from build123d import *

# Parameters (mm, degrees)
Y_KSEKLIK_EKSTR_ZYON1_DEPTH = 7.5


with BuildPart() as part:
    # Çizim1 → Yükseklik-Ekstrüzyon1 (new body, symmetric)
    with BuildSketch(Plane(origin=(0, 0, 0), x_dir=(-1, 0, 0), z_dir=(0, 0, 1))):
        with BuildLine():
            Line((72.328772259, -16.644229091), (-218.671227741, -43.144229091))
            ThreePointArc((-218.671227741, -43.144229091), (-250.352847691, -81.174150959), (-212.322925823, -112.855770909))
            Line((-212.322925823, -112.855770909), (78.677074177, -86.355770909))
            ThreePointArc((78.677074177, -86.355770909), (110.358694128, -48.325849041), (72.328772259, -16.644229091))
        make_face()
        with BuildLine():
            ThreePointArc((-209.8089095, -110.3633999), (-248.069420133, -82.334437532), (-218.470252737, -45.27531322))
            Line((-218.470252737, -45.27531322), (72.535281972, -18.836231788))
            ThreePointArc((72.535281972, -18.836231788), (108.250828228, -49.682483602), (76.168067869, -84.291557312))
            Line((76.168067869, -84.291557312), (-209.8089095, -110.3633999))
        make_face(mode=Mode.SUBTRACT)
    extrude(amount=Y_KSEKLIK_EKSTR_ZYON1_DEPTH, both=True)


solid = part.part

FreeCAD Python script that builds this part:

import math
import FreeCAD as App
import Part
import Sketcher

V = App.Vector

doc = App.newDocument("Part")
params = doc.addObject("Spreadsheet::Sheet", "Params")
for row, (alias, value) in enumerate([
    ("sketch1_radius", "35 mm"),
    ("pad1_length", "15 mm"),
], start=1):
    params.set(f"A{row}", alias)
    params.set(f"B{row}", "=" + value)
    params.setAlias(f"B{row}", alias)

body = doc.addObject("PartDesign::Body", "Body")

# Sketch on XY plane
sketch1 = body.newObject("Sketcher::SketchObject", "Sketch")
sketch1.AttachmentSupport = (doc.getObject("XY_Plane"), [""])
sketch1.MapMode = "FlatFace"
sketch1.addGeometry([
    Part.LineSegment(V(-72.328772, 16.644229, 0), V(218.671228, 43.144229, 0)),  # 0
    Part.ArcOfCircle(Part.Circle(V(215.497077, 78, 0), V(0, 0, 1), 35), math.radians(-84.796695), math.radians(95.203305)),  # 1
    Part.LineSegment(V(212.322926, 112.855771, 0), V(-78.677074, 86.355771, 0)),  # 2
    Part.ArcOfCircle(Part.Circle(V(-75.502923, 51.5, 0), V(0, 0, 1), 35), math.radians(95.203305), math.radians(275.203305)),  # 3
    Part.LineSegment(V(-76.168068, 84.291557, 0), V(209.808909, 110.3634, 0)),  # 4
    Part.ArcOfCircle(Part.Circle(V(215.497077, 78, 0), V(0, 0, 1), 32.859472), math.radians(-84.808689), math.radians(99.96845)),  # 5
    Part.LineSegment(V(218.470253, 45.275313, 0), V(-72.535282, 18.836232, 0)),  # 6
    Part.ArcOfCircle(Part.Circle(V(-75.502923, 51.5, 0), V(0, 0, 1), 32.798303), math.radians(91.162029), math.radians(275.191311)),  # 7
], False)
sketch1.addConstraint([
    Sketcher.Constraint("Tangent", 0, 2, 1, 1),
    Sketcher.Constraint("Tangent", 1, 2, 2, 1),
    Sketcher.Constraint("Tangent", 2, 2, 3, 1),
    Sketcher.Constraint("Tangent", 3, 2, 0, 1),
    Sketcher.Constraint("Coincident", 4, 2, 5, 2),
    Sketcher.Constraint("Tangent", 5, 1, 6, 1),
    Sketcher.Constraint("Tangent", 6, 2, 7, 2),
    Sketcher.Constraint("Coincident", 7, 1, 4, 1),
    Sketcher.Constraint("Coincident", 5, 3, 1, 3),
    Sketcher.Constraint("Coincident", 7, 3, 3, 3),
    Sketcher.Constraint("Equal", 1, 3),
    Sketcher.Constraint("Radius", 1, 35.0),
    Sketcher.Constraint("DistanceY", -1, 1, 1, 3, 78.0),
    Sketcher.Constraint("DistanceX", 3, 3, 1, 3, 291.0),
    Sketcher.Constraint("DistanceY", -1, 1, 3, 3, 51.5),
    Sketcher.Constraint("Radius", 5, 32.859472),
    Sketcher.Constraint("Radius", 7, 32.798303),
    Sketcher.Constraint("DistanceY", -1, 1, 4, 2, 110.3634),
    Sketcher.Constraint("DistanceX", -1, 1, 4, 2, 209.808909),
    Sketcher.Constraint("DistanceY", 3, 2, 7, 1, 67.647328),
])
sketch1.setExpression("Constraints[11]", "Params.sketch1_radius")
pad1 = body.newObject("PartDesign::Pad", "Pad")
pad1.Profile = sketch1
pad1.setExpression("Length", "Params.pad1_length")
pad1.Midplane = True

doc.recompute()
